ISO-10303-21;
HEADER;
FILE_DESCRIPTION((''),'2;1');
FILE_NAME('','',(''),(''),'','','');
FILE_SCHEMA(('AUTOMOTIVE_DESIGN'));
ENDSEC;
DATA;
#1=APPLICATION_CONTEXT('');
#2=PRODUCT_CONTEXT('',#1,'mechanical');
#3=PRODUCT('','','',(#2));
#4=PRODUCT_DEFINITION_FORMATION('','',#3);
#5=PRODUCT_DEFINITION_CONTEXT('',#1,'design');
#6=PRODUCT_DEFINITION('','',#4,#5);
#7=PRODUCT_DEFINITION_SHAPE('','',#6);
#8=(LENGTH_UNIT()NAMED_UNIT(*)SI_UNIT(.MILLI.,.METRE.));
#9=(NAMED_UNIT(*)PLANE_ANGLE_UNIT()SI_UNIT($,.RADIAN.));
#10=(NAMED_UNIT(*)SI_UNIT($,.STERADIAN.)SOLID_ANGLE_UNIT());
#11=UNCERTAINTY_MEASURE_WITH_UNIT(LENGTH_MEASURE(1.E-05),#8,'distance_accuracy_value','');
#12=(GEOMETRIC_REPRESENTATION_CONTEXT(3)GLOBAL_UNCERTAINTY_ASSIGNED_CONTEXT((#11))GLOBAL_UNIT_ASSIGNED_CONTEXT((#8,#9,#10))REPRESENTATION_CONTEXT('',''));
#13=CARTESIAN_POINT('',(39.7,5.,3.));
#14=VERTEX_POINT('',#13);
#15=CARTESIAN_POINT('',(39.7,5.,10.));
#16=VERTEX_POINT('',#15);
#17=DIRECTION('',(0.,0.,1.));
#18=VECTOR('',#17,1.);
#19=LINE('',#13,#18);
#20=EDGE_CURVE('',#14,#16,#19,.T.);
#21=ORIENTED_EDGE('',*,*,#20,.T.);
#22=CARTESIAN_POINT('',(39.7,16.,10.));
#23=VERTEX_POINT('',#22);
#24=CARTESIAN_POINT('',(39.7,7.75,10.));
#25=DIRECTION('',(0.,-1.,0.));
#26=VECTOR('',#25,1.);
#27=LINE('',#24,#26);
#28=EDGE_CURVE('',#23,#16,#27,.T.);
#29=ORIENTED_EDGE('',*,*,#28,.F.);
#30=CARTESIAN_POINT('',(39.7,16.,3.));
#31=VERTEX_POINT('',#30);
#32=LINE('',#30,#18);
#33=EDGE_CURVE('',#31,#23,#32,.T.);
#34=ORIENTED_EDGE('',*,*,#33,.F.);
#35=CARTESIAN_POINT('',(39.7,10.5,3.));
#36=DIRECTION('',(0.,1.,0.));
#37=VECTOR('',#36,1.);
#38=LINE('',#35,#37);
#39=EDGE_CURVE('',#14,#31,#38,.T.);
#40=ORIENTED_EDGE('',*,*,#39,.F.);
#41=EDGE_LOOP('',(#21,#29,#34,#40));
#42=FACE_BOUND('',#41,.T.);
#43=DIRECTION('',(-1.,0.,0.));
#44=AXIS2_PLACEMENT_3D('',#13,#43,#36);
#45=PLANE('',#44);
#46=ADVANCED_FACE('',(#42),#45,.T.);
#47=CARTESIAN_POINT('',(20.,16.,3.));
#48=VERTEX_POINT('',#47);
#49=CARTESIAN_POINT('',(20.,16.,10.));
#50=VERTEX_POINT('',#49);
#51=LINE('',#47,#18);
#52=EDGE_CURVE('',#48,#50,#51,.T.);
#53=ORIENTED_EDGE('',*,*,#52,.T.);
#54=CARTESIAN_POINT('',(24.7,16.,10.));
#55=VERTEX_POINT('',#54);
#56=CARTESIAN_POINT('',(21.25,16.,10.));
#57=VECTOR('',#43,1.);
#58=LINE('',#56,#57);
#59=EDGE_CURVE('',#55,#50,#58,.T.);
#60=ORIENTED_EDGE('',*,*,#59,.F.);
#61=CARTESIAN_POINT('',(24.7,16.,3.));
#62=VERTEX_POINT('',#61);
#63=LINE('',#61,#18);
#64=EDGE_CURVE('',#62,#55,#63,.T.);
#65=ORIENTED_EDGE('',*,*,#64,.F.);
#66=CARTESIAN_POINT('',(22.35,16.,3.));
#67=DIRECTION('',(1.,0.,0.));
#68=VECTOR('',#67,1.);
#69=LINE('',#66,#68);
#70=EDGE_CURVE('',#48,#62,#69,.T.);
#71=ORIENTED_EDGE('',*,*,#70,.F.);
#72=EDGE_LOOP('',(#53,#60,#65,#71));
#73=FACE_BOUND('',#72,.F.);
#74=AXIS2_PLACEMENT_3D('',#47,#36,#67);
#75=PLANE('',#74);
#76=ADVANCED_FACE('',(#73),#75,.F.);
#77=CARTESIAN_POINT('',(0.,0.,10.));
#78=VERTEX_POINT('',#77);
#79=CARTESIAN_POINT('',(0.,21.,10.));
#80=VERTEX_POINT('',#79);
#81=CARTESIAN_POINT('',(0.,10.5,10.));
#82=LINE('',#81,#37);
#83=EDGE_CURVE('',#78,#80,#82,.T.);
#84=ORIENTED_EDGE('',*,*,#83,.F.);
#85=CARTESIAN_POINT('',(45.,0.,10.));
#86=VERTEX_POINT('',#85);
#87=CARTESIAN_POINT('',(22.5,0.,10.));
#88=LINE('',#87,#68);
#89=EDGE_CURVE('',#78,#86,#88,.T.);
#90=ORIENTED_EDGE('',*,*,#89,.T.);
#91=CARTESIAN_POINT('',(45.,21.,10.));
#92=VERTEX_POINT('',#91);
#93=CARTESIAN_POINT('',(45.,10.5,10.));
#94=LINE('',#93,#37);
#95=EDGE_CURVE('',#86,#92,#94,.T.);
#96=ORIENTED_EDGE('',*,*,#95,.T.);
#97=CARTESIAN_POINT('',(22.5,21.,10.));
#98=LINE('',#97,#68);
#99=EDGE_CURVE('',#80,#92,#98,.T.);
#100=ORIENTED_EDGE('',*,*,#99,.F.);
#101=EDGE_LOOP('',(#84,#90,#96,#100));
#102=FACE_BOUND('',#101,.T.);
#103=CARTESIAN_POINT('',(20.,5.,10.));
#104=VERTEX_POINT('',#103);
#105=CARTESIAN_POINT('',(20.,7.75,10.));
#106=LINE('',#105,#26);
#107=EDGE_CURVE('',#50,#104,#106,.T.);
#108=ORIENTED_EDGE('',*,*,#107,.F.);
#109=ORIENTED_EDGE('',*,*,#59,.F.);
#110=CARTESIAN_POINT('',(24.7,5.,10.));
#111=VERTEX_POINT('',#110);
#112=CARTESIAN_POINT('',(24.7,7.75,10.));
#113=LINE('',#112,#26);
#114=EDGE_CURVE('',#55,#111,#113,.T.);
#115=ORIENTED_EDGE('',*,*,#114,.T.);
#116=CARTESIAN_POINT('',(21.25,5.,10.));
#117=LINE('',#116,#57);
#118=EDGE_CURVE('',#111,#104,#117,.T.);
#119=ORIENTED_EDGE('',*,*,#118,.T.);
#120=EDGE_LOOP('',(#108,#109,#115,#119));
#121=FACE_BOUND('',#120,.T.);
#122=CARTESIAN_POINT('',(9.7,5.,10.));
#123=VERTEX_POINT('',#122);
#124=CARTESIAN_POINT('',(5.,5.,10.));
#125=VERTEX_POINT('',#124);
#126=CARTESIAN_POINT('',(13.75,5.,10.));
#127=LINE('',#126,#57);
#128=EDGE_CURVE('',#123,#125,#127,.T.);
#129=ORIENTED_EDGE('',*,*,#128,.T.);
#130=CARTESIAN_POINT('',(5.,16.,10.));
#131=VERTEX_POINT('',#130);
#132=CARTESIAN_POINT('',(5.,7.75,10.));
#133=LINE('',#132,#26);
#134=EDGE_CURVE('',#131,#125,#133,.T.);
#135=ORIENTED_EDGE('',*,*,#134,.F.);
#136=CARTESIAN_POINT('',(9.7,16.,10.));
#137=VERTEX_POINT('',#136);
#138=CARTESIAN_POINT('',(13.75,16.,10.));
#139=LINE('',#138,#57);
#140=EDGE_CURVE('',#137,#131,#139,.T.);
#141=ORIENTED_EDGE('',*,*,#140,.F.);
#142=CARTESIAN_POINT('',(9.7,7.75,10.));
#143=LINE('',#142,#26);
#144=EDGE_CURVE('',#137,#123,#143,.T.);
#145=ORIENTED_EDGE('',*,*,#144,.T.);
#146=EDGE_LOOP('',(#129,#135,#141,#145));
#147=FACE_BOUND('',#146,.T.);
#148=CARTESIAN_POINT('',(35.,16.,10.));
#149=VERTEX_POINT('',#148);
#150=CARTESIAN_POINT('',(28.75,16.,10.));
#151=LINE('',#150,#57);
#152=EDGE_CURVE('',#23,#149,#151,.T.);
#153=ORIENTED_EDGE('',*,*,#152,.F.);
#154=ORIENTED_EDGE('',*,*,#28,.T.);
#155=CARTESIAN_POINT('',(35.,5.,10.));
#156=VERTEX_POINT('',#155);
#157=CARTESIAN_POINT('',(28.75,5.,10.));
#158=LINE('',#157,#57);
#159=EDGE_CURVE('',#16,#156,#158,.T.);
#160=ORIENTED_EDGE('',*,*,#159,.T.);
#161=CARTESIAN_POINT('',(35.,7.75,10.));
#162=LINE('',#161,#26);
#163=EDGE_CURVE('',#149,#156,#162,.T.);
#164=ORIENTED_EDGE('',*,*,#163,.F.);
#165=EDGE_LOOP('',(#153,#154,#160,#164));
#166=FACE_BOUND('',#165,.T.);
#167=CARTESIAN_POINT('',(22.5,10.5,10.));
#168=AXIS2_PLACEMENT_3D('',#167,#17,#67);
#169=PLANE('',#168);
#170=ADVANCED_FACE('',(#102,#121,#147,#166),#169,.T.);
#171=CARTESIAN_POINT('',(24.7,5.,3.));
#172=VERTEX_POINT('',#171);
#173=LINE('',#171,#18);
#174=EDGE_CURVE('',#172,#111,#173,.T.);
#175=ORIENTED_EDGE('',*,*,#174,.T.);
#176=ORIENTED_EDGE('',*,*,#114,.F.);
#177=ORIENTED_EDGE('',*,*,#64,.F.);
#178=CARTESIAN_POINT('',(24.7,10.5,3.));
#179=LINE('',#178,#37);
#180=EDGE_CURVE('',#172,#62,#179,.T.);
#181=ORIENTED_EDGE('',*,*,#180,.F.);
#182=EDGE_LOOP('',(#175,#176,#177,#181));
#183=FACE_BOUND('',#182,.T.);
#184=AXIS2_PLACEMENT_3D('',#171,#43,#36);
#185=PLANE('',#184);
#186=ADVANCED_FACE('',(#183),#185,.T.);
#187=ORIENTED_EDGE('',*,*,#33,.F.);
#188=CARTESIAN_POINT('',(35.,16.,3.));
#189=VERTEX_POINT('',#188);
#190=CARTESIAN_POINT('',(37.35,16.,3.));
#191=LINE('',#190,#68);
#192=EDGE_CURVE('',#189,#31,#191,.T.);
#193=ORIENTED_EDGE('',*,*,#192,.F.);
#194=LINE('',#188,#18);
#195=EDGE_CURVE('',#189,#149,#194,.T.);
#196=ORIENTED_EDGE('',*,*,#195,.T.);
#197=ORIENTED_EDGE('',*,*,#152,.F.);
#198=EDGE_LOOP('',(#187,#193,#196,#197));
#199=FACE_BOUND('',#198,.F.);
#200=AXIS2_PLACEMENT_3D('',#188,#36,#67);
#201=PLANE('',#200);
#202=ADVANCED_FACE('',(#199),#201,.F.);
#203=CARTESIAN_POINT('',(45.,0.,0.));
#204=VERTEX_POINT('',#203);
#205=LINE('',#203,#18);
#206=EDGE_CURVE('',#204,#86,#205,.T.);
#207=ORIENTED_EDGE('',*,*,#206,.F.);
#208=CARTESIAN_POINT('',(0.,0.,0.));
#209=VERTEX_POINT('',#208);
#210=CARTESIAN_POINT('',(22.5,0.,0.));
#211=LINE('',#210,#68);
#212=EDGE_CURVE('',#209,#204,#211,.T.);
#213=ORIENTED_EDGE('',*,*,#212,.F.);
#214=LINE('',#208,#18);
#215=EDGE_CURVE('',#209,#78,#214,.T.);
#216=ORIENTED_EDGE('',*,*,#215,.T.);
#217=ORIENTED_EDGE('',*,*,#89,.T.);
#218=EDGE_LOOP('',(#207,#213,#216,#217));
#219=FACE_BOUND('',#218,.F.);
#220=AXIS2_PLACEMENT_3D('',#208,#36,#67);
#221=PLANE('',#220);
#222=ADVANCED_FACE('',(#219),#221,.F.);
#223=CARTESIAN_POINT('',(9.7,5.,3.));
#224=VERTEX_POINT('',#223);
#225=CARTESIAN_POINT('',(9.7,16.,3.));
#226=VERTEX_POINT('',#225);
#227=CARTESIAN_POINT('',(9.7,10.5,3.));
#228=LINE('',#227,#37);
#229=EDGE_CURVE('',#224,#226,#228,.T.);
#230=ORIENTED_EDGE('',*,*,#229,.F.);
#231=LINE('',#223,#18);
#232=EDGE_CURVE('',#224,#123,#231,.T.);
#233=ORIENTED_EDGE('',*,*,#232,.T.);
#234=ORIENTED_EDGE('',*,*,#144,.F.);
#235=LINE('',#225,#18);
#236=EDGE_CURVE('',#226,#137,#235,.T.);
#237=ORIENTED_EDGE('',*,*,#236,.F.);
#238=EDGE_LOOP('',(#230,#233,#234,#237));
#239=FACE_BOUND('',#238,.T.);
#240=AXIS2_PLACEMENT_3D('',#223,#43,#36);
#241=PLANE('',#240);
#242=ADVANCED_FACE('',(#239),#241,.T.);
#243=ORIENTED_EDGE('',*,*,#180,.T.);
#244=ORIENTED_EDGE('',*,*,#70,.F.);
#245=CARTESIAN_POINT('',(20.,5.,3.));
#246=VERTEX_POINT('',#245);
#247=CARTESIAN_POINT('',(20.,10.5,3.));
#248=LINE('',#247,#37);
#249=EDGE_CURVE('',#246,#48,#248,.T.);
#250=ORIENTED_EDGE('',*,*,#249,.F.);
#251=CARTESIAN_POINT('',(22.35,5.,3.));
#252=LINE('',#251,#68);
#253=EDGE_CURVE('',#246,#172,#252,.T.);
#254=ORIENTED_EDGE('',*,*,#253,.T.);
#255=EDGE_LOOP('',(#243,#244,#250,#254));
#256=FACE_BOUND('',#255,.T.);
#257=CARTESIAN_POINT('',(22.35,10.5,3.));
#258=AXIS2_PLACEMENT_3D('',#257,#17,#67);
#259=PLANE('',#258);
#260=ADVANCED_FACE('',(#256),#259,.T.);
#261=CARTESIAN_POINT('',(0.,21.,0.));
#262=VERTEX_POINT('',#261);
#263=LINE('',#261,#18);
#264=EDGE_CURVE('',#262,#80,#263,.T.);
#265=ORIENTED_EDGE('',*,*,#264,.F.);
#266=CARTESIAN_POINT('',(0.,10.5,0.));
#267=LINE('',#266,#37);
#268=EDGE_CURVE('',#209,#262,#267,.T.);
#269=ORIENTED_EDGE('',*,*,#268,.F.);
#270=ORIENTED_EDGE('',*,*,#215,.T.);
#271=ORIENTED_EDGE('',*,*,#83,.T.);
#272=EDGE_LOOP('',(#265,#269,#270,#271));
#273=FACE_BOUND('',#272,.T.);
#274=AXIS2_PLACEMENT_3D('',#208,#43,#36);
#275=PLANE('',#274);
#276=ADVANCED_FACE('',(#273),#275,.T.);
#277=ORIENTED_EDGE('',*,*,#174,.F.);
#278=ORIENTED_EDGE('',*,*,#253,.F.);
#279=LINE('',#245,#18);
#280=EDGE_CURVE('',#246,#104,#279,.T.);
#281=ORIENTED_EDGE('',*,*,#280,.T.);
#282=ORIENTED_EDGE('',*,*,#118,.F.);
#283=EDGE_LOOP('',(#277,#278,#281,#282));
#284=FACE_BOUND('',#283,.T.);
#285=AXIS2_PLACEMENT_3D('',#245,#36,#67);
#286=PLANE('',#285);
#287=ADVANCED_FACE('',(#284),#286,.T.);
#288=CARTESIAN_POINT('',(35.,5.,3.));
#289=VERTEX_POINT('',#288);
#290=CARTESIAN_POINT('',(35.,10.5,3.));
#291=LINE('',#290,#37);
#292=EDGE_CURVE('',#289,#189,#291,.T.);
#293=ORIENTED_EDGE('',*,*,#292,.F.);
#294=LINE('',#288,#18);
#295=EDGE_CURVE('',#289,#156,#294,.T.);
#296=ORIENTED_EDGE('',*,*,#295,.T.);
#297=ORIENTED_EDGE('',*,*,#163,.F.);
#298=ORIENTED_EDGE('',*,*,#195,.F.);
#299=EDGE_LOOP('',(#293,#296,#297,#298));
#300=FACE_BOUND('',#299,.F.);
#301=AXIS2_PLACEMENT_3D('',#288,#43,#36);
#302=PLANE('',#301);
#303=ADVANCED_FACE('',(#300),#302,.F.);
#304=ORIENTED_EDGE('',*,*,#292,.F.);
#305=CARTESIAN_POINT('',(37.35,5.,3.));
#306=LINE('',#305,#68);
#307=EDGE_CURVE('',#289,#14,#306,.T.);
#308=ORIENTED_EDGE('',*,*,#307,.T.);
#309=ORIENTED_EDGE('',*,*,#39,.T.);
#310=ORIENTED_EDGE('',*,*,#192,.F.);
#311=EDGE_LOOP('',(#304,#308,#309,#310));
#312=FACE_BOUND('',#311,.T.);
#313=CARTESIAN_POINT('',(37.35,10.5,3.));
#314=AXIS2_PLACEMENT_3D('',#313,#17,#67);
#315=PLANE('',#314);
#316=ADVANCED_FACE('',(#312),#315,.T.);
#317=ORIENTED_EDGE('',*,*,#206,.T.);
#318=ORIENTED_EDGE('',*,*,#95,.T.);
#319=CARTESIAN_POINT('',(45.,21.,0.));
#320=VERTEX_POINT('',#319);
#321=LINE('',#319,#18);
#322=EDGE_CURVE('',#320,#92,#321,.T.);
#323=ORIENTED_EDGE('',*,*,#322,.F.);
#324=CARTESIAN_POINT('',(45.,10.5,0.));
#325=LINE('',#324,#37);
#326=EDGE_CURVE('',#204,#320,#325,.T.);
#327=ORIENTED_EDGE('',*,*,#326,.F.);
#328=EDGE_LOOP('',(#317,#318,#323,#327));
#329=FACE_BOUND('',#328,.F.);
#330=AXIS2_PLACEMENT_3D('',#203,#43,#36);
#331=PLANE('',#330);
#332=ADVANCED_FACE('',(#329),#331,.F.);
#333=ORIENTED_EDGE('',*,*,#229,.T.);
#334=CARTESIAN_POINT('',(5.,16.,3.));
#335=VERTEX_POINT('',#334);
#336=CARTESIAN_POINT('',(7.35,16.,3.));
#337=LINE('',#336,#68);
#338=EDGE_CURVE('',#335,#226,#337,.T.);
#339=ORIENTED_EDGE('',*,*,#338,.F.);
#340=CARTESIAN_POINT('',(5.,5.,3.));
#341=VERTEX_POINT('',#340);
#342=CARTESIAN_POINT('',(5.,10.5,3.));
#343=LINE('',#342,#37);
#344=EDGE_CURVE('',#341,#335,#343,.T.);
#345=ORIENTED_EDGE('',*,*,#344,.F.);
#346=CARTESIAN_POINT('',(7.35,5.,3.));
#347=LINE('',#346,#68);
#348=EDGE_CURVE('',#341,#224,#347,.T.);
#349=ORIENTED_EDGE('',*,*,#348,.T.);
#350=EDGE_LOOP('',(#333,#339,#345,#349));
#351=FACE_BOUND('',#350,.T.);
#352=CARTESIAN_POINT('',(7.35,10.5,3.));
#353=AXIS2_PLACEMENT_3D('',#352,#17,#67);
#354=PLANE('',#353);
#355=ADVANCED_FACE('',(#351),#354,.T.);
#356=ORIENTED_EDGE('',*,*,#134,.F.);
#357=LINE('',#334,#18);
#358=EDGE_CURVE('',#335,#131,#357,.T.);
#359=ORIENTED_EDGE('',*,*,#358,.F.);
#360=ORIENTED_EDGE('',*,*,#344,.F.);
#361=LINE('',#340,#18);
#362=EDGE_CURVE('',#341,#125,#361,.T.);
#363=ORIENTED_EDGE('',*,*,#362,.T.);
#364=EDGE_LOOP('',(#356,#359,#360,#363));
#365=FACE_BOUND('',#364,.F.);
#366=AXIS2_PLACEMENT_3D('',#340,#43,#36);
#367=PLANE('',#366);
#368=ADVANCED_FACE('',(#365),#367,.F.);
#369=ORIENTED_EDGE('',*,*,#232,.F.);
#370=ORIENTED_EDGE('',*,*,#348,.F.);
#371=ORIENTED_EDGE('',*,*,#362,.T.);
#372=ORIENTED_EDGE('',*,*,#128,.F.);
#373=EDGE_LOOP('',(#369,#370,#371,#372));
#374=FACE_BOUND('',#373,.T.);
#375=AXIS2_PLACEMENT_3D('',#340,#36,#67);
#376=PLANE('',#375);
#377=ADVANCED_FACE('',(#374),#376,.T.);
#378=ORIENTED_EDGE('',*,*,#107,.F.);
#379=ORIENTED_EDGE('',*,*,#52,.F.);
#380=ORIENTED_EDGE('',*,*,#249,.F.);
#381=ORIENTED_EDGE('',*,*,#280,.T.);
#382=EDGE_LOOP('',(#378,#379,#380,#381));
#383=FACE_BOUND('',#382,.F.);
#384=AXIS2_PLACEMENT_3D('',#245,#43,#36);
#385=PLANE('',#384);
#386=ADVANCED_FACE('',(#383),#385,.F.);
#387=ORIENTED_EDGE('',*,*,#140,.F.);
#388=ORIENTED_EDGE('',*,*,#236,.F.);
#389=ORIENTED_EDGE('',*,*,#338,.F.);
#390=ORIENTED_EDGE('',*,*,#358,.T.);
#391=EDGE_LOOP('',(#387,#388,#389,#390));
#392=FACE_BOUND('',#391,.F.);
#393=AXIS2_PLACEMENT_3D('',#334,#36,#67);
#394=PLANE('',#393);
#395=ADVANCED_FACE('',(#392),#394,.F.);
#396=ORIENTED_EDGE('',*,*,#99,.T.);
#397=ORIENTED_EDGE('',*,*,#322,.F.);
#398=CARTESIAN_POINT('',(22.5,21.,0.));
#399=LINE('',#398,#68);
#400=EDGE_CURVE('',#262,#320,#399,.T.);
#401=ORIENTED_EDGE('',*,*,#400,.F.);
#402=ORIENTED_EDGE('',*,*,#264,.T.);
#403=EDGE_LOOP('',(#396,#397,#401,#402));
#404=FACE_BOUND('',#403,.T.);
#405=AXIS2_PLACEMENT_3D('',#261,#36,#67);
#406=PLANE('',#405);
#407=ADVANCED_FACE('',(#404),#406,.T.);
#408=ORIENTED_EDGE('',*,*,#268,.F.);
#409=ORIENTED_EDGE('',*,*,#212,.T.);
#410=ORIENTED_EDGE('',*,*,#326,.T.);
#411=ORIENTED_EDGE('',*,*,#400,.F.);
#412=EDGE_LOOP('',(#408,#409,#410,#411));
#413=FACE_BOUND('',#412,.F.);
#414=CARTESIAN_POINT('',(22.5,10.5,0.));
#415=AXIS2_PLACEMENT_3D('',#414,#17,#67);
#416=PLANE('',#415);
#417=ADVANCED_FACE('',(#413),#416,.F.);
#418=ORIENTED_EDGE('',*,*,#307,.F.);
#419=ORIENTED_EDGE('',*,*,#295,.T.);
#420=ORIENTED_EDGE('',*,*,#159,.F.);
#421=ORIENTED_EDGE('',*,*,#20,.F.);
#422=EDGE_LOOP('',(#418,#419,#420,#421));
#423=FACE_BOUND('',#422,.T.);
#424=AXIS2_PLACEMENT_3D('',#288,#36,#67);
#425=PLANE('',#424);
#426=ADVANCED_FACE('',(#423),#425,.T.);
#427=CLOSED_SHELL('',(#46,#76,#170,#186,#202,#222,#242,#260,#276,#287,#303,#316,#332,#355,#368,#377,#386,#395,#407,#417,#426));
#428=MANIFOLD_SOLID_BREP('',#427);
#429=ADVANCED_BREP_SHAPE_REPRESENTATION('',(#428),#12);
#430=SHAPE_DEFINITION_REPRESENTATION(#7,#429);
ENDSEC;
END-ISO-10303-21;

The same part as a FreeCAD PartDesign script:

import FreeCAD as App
import Part
import Sketcher

V = App.Vector

doc = App.newDocument("Part")
body = doc.addObject("PartDesign::Body", "Body")

# Sketch on XY plane
sketch1 = doc.addObject("Sketcher::SketchObject", "Sketch")
body.addObject(sketch1)
sketch1.AttachmentSupport = (doc.XY_Plane, [""])
sketch1.MapMode = "FlatFace"
sketch1.AttachmentOffset = App.Placement(V(0, 0, 3), App.Rotation())
sketch1.addGeometry([
    Part.LineSegment(V(20, 16, 0), V(20, 5, 0)),
    Part.LineSegment(V(20, 5, 0), V(24.7, 5, 0)),
    Part.LineSegment(V(24.7, 5, 0), V(24.7, 16, 0)),
    Part.LineSegment(V(24.7, 16, 0), V(20, 16, 0)),
], False)
sketch1.addConstraint([
    Sketcher.Constraint("Coincident", 0, 2, 1, 1),
    Sketcher.Constraint("Coincident", 1, 2, 2, 1),
    Sketcher.Constraint("Coincident", 2, 2, 3, 1),
    Sketcher.Constraint("Coincident", 3, 2, 0, 1),
    Sketcher.Constraint("Vertical", 0),
    Sketcher.Constraint("Horizontal", 1),
    Sketcher.Constraint("Vertical", 2),
    Sketcher.Constraint("Horizontal", 3),
    Sketcher.Constraint("DistanceY", 0, 2, 0, 1, 11.0),
    Sketcher.Constraint("DistanceX", 1, 1, 1, 2, 4.7),
    Sketcher.Constraint("DistanceX", -1, 1, 0, 2, 20.0),
    Sketcher.Constraint("DistanceY", -1, 1, 0, 2, 5.0),
])
pad1 = doc.addObject("PartDesign::Pad", "Pad")
body.addObject(pad1)
pad1.Profile = sketch1
pad1.Length = 9
body2 = doc.addObject("PartDesign::Body", "Body001")

# Sketch on XY plane
sketch2 = doc.addObject("Sketcher::SketchObject", "Sketch001")
body2.addObject(sketch2)
sketch2.AttachmentSupport = (doc.getObject("XY_Plane001"), [""])
sketch2.MapMode = "FlatFace"
sketch2.AttachmentOffset = App.Placement(V(0, 0, 3), App.Rotation())
sketch2.addGeometry([
    Part.LineSegment(V(35, 16, 0), V(35, 5, 0)),
    Part.LineSegment(V(35, 5, 0), V(39.7, 5, 0)),
    Part.LineSegment(V(39.7, 5, 0), V(39.7, 16, 0)),
    Part.LineSegment(V(39.7, 16, 0), V(35, 16, 0)),
], False)
sketch2.addConstraint([
    Sketcher.Constraint("Coincident", 0, 2, 1, 1),
    Sketcher.Constraint("Coincident", 1, 2, 2, 1),
    Sketcher.Constraint("Coincident", 2, 2, 3, 1),
    Sketcher.Constraint("Coincident", 3, 2, 0, 1),
    Sketcher.Constraint("Vertical", 0),
    Sketcher.Constraint("Horizontal", 1),
    Sketcher.Constraint("Vertical", 2),
    Sketcher.Constraint("Horizontal", 3),
    Sketcher.Constraint("DistanceY", 0, 2, 0, 1, 11.0),
    Sketcher.Constraint("DistanceX", 1, 1, 1, 2, 4.7),
    Sketcher.Constraint("DistanceX", -1, 1, 0, 2, 35.0),
    Sketcher.Constraint("DistanceY", -1, 1, 0, 2, 5.0),
])
pad2 = doc.addObject("PartDesign::Pad", "Pad001")
body2.addObject(pad2)
pad2.Profile = sketch2
pad2.Length = 9
body3 = doc.addObject("PartDesign::Body", "Body002")

# Sketch on XY plane
sketch3 = doc.addObject("Sketcher::SketchObject", "Sketch002")
body3.addObject(sketch3)
sketch3.AttachmentSupport = (doc.getObject("XY_Plane002"), [""])
sketch3.MapMode = "FlatFace"
sketch3.AttachmentOffset = App.Placement(V(0, 0, 3), App.Rotation())
sketch3.addGeometry([
    Part.LineSegment(V(5, 16, 0), V(5, 5, 0)),
    Part.LineSegment(V(5, 5, 0), V(9.7, 5, 0)),
    Part.LineSegment(V(9.7, 5, 0), V(9.7, 16, 0)),
    Part.LineSegment(V(9.7, 16, 0), V(5, 16, 0)),
], False)
sketch3.addConstraint([
    Sketcher.Constraint("Coincident", 0, 2, 1, 1),
    Sketcher.Constraint("Coincident", 1, 2, 2, 1),
    Sketcher.Constraint("Coincident", 2, 2, 3, 1),
    Sketcher.Constraint("Coincident", 3, 2, 0, 1),
    Sketcher.Constraint("Vertical", 0),
    Sketcher.Constraint("Horizontal", 1),
    Sketcher.Constraint("Vertical", 2),
    Sketcher.Constraint("Horizontal", 3),
    Sketcher.Constraint("DistanceY", 0, 2, 0, 1, 11.0),
    Sketcher.Constraint("DistanceX", 1, 1, 1, 2, 4.7),
    Sketcher.Constraint("DistanceX", -1, 1, 0, 2, 5.0),
    Sketcher.Constraint("DistanceY", -1, 1, 0, 2, 5.0),
])
pad3 = doc.addObject("PartDesign::Pad", "Pad002")
body3.addObject(pad3)
pad3.Profile = sketch3
pad3.Length = 9
body4 = doc.addObject("PartDesign::Body", "Body003")

# Sketch on XY plane
sketch4 = doc.addObject("Sketcher::SketchObject", "Sketch003")
body4.addObject(sketch4)
sketch4.AttachmentSupport = (doc.getObject("XY_Plane003"), [""])
sketch4.MapMode = "FlatFace"
sketch4.addGeometry([
    Part.LineSegment(V(0, 21, 0), V(0, 0, 0)),
    Part.LineSegment(V(0, 0, 0), V(45, 0, 0)),
    Part.LineSegment(V(45, 0, 0), V(45, 21, 0)),
    Part.LineSegment(V(45, 21, 0), V(0, 21, 0)),
], False)
sketch4.addConstraint([
    Sketcher.Constraint("Coincident", 0, 2, 1, 1),
    Sketcher.Constraint("Coincident", 1, 2, 2, 1),
    Sketcher.Constraint("Coincident", 2, 2, 3, 1),
    Sketcher.Constraint("Coincident", 3, 2, 0, 1),
    Sketcher.Constraint("Vertical", 0),
    Sketcher.Constraint("Horizontal", 1),
    Sketcher.Constraint("Vertical", 2),
    Sketcher.Constraint("Horizontal", 3),
    Sketcher.Constraint("Coincident", 0, 2, -1, 1),
    Sketcher.Constraint("DistanceX", 1, 1, 1, 2, 45.0),
    Sketcher.Constraint("DistanceY", 0, 2, 0, 1, 21.0),
])
pad4 = doc.addObject("PartDesign::Pad", "Pad003")
body4.addObject(pad4)
pad4.Profile = sketch4
pad4.Length = 10
doc.recompute()

boolean = doc.addObject("PartDesign::Boolean", "Boolean")
body4.addObject(boolean)
boolean.Type = "Cut"
boolean.addObjects([body3])
doc.recompute()

boolean2 = doc.addObject("PartDesign::Boolean", "Boolean001")
body4.addObject(boolean2)
boolean2.Type = "Cut"
boolean2.addObjects([body2])
doc.recompute()

boolean3 = doc.addObject("PartDesign::Boolean", "Boolean002")
body4.addObject(boolean3)
boolean3.Type = "Cut"
boolean3.addObjects([body])

doc.recompute()
